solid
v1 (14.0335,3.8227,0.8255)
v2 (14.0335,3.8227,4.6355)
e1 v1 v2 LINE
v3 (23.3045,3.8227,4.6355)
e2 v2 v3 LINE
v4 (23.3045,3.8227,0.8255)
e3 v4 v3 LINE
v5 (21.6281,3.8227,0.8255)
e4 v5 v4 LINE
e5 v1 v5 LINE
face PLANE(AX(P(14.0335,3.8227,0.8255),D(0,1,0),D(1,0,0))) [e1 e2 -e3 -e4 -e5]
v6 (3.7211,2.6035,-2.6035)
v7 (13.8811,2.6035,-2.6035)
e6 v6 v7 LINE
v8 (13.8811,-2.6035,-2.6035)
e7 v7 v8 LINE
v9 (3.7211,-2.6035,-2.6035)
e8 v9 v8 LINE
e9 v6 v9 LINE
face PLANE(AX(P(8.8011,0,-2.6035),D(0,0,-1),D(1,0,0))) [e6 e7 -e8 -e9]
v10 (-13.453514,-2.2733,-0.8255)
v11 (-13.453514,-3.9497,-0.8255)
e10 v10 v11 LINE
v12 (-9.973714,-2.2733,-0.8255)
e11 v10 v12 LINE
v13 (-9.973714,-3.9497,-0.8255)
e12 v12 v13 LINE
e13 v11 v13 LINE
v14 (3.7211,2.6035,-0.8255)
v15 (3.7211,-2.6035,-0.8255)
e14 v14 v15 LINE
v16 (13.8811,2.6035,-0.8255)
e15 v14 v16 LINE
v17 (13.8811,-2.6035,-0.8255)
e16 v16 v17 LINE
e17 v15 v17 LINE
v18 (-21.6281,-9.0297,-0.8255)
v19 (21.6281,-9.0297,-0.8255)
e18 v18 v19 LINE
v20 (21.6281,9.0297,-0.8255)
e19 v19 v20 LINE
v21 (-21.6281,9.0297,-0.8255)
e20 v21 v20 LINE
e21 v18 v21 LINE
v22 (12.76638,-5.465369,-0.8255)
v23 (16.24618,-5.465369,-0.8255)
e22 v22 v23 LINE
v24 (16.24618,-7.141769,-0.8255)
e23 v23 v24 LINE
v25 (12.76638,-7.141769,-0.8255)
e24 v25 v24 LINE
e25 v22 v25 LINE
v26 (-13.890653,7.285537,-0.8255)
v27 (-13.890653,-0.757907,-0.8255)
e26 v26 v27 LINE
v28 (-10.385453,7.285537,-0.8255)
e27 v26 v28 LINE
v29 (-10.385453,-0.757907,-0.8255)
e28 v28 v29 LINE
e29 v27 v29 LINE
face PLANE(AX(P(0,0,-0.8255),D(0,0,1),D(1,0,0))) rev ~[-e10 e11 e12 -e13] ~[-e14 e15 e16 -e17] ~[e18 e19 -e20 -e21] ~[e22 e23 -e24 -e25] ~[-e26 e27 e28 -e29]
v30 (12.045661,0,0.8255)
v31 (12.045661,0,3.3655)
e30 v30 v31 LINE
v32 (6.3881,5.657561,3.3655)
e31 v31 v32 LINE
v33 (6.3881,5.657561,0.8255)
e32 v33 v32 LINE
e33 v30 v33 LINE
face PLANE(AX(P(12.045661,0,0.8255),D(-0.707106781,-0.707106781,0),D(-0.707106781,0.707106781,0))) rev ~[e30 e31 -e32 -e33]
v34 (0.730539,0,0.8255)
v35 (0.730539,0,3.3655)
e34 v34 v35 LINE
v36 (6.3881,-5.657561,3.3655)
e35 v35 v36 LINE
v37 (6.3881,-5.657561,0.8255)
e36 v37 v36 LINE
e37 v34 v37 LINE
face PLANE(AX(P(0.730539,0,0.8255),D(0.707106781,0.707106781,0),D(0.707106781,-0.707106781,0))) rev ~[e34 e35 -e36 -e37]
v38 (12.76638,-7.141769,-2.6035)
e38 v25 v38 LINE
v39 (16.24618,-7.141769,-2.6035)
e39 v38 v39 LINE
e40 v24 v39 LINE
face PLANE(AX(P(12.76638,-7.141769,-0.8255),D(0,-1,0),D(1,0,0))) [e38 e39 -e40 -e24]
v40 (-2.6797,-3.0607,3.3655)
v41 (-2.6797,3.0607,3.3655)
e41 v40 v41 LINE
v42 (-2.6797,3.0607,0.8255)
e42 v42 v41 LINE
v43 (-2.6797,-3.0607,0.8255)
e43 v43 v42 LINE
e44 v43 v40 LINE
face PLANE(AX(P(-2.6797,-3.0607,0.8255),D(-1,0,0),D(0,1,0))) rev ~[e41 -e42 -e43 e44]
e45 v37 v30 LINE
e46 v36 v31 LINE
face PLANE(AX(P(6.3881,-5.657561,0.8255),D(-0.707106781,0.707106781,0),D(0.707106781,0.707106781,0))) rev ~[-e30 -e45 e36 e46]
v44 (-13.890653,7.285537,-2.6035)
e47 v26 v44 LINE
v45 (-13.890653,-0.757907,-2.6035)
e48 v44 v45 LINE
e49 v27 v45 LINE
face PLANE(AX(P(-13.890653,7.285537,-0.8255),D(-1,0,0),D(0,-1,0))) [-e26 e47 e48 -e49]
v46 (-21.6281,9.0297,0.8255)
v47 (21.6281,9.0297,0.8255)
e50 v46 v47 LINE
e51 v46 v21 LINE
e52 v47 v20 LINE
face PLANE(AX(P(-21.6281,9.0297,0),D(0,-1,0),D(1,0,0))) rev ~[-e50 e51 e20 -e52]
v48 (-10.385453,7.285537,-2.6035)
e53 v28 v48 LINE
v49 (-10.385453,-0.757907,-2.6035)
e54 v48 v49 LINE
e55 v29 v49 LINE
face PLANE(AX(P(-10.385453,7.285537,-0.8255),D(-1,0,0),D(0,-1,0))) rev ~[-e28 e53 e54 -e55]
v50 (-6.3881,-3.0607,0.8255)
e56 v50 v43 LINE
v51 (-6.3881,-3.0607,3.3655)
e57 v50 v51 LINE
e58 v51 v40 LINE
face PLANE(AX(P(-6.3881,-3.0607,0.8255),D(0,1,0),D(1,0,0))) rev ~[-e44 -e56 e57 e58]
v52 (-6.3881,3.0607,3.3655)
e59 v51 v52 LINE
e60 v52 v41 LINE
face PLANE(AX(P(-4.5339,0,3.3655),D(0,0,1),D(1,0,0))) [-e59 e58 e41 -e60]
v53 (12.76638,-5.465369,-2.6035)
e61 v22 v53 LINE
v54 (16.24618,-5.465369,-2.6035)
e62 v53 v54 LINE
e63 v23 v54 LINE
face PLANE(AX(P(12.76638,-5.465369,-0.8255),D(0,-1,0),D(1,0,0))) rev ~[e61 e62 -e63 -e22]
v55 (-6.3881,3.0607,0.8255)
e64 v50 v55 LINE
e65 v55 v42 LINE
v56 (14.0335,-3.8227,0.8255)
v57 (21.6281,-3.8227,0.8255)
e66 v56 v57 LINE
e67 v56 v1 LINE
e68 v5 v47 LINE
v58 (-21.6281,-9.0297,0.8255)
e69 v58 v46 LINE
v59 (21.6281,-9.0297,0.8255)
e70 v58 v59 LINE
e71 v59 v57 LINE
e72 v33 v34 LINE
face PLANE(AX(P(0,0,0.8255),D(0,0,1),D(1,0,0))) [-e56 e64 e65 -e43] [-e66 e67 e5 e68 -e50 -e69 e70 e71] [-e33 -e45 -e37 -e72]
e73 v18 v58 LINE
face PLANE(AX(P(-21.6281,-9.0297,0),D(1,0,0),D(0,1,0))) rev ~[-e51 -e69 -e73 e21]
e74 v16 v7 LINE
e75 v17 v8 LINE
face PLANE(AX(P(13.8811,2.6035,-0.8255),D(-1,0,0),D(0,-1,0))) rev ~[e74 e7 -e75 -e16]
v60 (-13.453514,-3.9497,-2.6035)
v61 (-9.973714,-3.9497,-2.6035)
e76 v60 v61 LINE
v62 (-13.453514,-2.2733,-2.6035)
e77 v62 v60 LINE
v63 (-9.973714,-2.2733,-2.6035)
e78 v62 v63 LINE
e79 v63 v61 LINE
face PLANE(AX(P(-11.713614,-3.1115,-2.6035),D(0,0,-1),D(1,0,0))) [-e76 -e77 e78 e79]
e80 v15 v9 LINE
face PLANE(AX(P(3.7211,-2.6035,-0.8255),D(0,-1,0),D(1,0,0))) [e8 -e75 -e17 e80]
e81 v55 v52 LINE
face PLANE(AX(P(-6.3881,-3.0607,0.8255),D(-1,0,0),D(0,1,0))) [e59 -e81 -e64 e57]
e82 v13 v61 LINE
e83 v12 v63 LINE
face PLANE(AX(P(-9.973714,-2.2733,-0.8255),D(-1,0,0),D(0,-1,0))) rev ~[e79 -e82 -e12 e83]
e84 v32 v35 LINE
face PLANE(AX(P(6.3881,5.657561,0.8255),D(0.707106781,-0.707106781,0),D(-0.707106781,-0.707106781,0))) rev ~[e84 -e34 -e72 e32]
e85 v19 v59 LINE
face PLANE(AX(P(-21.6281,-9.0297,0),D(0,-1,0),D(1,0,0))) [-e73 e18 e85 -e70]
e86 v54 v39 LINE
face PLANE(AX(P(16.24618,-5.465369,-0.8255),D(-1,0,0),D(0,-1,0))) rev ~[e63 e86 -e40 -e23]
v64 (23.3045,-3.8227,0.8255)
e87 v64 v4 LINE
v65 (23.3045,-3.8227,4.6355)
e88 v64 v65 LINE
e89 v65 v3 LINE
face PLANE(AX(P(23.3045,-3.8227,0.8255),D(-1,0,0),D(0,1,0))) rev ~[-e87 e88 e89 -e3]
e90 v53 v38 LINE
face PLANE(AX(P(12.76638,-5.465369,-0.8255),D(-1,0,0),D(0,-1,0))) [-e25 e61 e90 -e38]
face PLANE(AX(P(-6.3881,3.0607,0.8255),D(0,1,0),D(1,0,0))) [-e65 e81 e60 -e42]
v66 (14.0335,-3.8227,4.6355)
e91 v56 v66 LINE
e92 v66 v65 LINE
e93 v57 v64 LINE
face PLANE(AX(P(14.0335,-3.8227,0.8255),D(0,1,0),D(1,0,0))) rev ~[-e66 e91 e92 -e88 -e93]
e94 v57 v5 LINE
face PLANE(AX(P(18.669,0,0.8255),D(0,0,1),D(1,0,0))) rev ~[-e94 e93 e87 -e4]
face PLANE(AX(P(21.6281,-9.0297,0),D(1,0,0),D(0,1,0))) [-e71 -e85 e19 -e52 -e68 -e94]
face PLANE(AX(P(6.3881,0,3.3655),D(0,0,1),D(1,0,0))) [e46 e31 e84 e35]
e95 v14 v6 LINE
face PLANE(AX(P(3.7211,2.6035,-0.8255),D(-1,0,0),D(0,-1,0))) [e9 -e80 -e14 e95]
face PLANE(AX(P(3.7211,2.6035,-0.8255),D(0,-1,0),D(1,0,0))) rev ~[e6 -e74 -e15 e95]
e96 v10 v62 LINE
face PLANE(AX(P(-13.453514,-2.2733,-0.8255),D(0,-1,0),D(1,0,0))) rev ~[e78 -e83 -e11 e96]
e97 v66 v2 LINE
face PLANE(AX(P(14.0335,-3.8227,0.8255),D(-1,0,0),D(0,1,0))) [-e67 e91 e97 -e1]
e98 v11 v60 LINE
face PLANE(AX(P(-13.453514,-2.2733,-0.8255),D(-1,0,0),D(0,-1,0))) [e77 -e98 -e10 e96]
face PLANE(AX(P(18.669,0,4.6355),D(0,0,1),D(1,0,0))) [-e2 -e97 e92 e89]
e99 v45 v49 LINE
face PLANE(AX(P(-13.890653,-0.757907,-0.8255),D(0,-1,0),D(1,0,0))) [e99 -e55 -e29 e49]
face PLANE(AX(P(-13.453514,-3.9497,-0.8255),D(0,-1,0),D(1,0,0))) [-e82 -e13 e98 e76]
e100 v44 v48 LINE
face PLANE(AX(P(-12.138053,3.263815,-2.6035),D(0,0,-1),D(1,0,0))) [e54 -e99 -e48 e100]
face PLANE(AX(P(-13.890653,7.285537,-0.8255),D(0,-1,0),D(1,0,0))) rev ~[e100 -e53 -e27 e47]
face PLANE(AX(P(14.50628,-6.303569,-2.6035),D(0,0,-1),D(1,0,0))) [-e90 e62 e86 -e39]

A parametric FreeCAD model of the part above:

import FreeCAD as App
import Part
import Sketcher
Q = App.Units.Quantity


def add_polygon(sketch, points):
    """Adds a closed chain of lines whose ends are joined by coincident constraints."""
    first, n = sketch.GeometryCount, len(points)
    for a, b in zip(points, points[1:] + points[:1]):
        sketch.addGeometry(Part.LineSegment(App.Vector(*a, 0), App.Vector(*b, 0)), False)
    for i in range(n):
        sketch.addConstraint(Sketcher.Constraint("Coincident", first + i, 2, first + (i + 1) % n, 1))

doc = App.newDocument("Part")
body = doc.addObject("PartDesign::Body", "Body")

sketch1 = body.newObject("Sketcher::SketchObject", "Sketch")
sketch1.AttachmentSupport = (doc.getObject("XY_Plane"), [""])
sketch1.MapMode = "FlatFace"
add_polygon(sketch1, [(-22, 9), (-22, -9), (22, -9), (22, 9)])
sketch1.addConstraint([
    Sketcher.Constraint("Vertical", 0),
    Sketcher.Constraint("Horizontal", 1),
    Sketcher.Constraint("Vertical", 2),
    Sketcher.Constraint("Horizontal", 3),
    Sketcher.Constraint("Symmetric", 0, 2, 2, 2, -1, 1),
    Sketcher.Constraint("DistanceX", 1, 1, 1, 2, Q("1.703 in")),
    Sketcher.Constraint("DistanceY", 0, 2, 0, 1, Q("0.711 in")),
])
pad1 = body.newObject("PartDesign::Pad", "Pad")
pad1.Profile = sketch1
pad1.Length = Q("0.065 in")
pad1.Midplane = True

sketch2 = body.newObject("Sketcher::SketchObject", "Sketch001")
sketch2.AttachmentSupport = (doc.getObject("XY_Plane"), [""])
sketch2.MapMode = "FlatFace"
sketch2.AttachmentOffset = App.Placement(App.Vector(0, 0, 0.0325 * 25.4), App.Rotation())
add_polygon(sketch2, [(14, 4), (14, -4), (23, -4), (23, 4)])
sketch2.addConstraint([
    Sketcher.Constraint("Vertical", 0),
    Sketcher.Constraint("Horizontal", 1),
    Sketcher.Constraint("Vertical", 2),
    Sketcher.Constraint("Horizontal", 3),
    Sketcher.Constraint("DistanceX", 1, 1, 1, 2, Q("0.365 in")),
    Sketcher.Constraint("DistanceY", 0, 2, 0, 1, Q("0.301 in")),
    Sketcher.Constraint("DistanceX", -1, 1, 0, 2, Q("0.5525 in")),
    Sketcher.Constraint("DistanceY", 0, 2, -1, 1, Q("0.1505 in")),
])
pad2 = body.newObject("PartDesign::Pad", "Pad001")
pad2.Profile = sketch2
pad2.Length = Q("0.15 in")

sketch3 = body.newObject("Sketcher::SketchObject", "Sketch002")
sketch3.AttachmentSupport = (doc.getObject("XY_Plane"), [""])
sketch3.MapMode = "FlatFace"
sketch3.AttachmentOffset = App.Placement(App.Vector(0, 0, 0.0325 * 25.4), App.Rotation())
add_polygon(sketch3, [(-6.4, 3.1), (-6.4, -3.1), (-2.7, -3.1), (-2.7, 3.1)])
add_polygon(sketch3, [(12, 0), (6.4, 5.7), (0.7, 0), (6.4, -5.7)])
sketch3.addConstraint([
    Sketcher.Constraint("Vertical", 0),
    Sketcher.Constraint("Horizontal", 1),
    Sketcher.Constraint("Vertical", 2),
    Sketcher.Constraint("Horizontal", 3),
    Sketcher.Constraint("Symmetric", 4, 2, 6, 2, -1),
    Sketcher.Constraint("PointOnObject", 5, 2, -1),
    Sketcher.Constraint("PointOnObject", 7, 2, -1),
    Sketcher.Constraint("Perpendicular", 4, 5),
    Sketcher.Constraint("Perpendicular", 5, 6),
    Sketcher.Constraint("DistanceX", 1, 1, 1, 2, Q("0.146 in")),
    Sketcher.Constraint("DistanceY", 0, 2, 0, 1, Q("0.241 in")),
    Sketcher.Constraint("Distance", 4, Q("0.315 in")),
    Sketcher.Constraint("DistanceX", 2, 2, 4, 2, Q("0.357 in")),
    Sketcher.Constraint("DistanceX", 0, 2, -1, 1, Q("0.2515 in")),
    Sketcher.Constraint("DistanceY", 0, 2, -1, 1, Q("0.1205 in")),
])
pad3 = body.newObject("PartDesign::Pad", "Pad002")
pad3.Profile = sketch3
pad3.Length = Q("0.1 in")

sketch4 = body.newObject("Sketcher::SketchObject", "Sketch003")
sketch4.AttachmentSupport = (doc.getObject("XY_Plane"), [""])
sketch4.MapMode = "FlatFace"
sketch4.AttachmentOffset = App.Placement(App.Vector(0, 0, -0.0325 * 25.4), App.Rotation())
add_polygon(sketch4, [(3.7, -2.6), (3.7, 2.6), (13.9, 2.6), (13.9, -2.6)])
add_polygon(sketch4, [(12.8, -7.1), (12.8, -5.5), (16.2, -5.5), (16.2, -7.1)])
add_polygon(sketch4, [(-13.9, -0.8), (-13.9, 7.3), (-10.4, 7.3), (-10.4, -0.8)])
add_polygon(sketch4, [(-13.5, -3.9), (-13.5, -2.3), (-10, -2.3), (-10, -3.9)])
sketch4.addConstraint([
    Sketcher.Constraint("Vertical", 0),
    Sketcher.Constraint("Horizontal", 1),
    Sketcher.Constraint("Vertical", 2),
    Sketcher.Constraint("Horizontal", 3),
    Sketcher.Constraint("Vertical", 4),
    Sketcher.Constraint("Horizontal", 5),
    Sketcher.Constraint("Vertical", 6),
    Sketcher.Constraint("Horizontal", 7),
    Sketcher.Constraint("Vertical", 8),
    Sketcher.Constraint("Horizontal", 9),
    Sketcher.Constraint("Vertical", 10),
    Sketcher.Constraint("Horizontal", 11),
    Sketcher.Constraint("Vertical", 12),
    Sketcher.Constraint("Horizontal", 13),
    Sketcher.Constraint("Vertical", 14),
    Sketcher.Constraint("Horizontal", 15),
    Sketcher.Constraint("Equal", 7, 13),
    Sketcher.Constraint("Equal", 6, 12),
    Sketcher.Constraint("DistanceX", 1, 1, 1, 2, Q("0.4 in")),
    Sketcher.Constraint("DistanceX", 5, 1, 5, 2, Q("0.137 in")),
    Sketcher.Constraint("DistanceX", 9, 1, 9, 2, Q("0.138 in")),
    Sketcher.Constraint("DistanceY", 0, 1, 0, 2, Q("0.205 in")),
    Sketcher.Constraint("DistanceY", 4, 1, 4, 2, Q("0.066 in")),
    Sketcher.Constraint("DistanceY", 3, 2, 12, 2, Q("0.013 in")),
    Sketcher.Constraint("DistanceX", -1, 1, 0, 2, Q("0.1465 in")),
    Sketcher.Constraint("DistanceY", -1, 1, 0, 2, Q("0.1025 in")),
    Sketcher.Constraint("DistanceY", 8, 1, 8, 2, 8.043443),
    Sketcher.Constraint("DistanceX", -1, 1, 4, 2, 12.76638),
    Sketcher.Constraint("DistanceY", 4, 2, -1, 1, 5.465369),
    Sketcher.Constraint("DistanceX", 11, 2, 12, 2, 0.437139),
    Sketcher.Constraint("DistanceX", 8, 2, -1, 1, 13.890653),
    Sketcher.Constraint("DistanceY", -1, 1, 8, 2, 7.285537),
])
pad4 = body.newObject("PartDesign::Pad", "Pad003")
pad4.Profile = sketch4
pad4.Length = Q("0.07 in")
pad4.Reversed = True

doc.recompute()
